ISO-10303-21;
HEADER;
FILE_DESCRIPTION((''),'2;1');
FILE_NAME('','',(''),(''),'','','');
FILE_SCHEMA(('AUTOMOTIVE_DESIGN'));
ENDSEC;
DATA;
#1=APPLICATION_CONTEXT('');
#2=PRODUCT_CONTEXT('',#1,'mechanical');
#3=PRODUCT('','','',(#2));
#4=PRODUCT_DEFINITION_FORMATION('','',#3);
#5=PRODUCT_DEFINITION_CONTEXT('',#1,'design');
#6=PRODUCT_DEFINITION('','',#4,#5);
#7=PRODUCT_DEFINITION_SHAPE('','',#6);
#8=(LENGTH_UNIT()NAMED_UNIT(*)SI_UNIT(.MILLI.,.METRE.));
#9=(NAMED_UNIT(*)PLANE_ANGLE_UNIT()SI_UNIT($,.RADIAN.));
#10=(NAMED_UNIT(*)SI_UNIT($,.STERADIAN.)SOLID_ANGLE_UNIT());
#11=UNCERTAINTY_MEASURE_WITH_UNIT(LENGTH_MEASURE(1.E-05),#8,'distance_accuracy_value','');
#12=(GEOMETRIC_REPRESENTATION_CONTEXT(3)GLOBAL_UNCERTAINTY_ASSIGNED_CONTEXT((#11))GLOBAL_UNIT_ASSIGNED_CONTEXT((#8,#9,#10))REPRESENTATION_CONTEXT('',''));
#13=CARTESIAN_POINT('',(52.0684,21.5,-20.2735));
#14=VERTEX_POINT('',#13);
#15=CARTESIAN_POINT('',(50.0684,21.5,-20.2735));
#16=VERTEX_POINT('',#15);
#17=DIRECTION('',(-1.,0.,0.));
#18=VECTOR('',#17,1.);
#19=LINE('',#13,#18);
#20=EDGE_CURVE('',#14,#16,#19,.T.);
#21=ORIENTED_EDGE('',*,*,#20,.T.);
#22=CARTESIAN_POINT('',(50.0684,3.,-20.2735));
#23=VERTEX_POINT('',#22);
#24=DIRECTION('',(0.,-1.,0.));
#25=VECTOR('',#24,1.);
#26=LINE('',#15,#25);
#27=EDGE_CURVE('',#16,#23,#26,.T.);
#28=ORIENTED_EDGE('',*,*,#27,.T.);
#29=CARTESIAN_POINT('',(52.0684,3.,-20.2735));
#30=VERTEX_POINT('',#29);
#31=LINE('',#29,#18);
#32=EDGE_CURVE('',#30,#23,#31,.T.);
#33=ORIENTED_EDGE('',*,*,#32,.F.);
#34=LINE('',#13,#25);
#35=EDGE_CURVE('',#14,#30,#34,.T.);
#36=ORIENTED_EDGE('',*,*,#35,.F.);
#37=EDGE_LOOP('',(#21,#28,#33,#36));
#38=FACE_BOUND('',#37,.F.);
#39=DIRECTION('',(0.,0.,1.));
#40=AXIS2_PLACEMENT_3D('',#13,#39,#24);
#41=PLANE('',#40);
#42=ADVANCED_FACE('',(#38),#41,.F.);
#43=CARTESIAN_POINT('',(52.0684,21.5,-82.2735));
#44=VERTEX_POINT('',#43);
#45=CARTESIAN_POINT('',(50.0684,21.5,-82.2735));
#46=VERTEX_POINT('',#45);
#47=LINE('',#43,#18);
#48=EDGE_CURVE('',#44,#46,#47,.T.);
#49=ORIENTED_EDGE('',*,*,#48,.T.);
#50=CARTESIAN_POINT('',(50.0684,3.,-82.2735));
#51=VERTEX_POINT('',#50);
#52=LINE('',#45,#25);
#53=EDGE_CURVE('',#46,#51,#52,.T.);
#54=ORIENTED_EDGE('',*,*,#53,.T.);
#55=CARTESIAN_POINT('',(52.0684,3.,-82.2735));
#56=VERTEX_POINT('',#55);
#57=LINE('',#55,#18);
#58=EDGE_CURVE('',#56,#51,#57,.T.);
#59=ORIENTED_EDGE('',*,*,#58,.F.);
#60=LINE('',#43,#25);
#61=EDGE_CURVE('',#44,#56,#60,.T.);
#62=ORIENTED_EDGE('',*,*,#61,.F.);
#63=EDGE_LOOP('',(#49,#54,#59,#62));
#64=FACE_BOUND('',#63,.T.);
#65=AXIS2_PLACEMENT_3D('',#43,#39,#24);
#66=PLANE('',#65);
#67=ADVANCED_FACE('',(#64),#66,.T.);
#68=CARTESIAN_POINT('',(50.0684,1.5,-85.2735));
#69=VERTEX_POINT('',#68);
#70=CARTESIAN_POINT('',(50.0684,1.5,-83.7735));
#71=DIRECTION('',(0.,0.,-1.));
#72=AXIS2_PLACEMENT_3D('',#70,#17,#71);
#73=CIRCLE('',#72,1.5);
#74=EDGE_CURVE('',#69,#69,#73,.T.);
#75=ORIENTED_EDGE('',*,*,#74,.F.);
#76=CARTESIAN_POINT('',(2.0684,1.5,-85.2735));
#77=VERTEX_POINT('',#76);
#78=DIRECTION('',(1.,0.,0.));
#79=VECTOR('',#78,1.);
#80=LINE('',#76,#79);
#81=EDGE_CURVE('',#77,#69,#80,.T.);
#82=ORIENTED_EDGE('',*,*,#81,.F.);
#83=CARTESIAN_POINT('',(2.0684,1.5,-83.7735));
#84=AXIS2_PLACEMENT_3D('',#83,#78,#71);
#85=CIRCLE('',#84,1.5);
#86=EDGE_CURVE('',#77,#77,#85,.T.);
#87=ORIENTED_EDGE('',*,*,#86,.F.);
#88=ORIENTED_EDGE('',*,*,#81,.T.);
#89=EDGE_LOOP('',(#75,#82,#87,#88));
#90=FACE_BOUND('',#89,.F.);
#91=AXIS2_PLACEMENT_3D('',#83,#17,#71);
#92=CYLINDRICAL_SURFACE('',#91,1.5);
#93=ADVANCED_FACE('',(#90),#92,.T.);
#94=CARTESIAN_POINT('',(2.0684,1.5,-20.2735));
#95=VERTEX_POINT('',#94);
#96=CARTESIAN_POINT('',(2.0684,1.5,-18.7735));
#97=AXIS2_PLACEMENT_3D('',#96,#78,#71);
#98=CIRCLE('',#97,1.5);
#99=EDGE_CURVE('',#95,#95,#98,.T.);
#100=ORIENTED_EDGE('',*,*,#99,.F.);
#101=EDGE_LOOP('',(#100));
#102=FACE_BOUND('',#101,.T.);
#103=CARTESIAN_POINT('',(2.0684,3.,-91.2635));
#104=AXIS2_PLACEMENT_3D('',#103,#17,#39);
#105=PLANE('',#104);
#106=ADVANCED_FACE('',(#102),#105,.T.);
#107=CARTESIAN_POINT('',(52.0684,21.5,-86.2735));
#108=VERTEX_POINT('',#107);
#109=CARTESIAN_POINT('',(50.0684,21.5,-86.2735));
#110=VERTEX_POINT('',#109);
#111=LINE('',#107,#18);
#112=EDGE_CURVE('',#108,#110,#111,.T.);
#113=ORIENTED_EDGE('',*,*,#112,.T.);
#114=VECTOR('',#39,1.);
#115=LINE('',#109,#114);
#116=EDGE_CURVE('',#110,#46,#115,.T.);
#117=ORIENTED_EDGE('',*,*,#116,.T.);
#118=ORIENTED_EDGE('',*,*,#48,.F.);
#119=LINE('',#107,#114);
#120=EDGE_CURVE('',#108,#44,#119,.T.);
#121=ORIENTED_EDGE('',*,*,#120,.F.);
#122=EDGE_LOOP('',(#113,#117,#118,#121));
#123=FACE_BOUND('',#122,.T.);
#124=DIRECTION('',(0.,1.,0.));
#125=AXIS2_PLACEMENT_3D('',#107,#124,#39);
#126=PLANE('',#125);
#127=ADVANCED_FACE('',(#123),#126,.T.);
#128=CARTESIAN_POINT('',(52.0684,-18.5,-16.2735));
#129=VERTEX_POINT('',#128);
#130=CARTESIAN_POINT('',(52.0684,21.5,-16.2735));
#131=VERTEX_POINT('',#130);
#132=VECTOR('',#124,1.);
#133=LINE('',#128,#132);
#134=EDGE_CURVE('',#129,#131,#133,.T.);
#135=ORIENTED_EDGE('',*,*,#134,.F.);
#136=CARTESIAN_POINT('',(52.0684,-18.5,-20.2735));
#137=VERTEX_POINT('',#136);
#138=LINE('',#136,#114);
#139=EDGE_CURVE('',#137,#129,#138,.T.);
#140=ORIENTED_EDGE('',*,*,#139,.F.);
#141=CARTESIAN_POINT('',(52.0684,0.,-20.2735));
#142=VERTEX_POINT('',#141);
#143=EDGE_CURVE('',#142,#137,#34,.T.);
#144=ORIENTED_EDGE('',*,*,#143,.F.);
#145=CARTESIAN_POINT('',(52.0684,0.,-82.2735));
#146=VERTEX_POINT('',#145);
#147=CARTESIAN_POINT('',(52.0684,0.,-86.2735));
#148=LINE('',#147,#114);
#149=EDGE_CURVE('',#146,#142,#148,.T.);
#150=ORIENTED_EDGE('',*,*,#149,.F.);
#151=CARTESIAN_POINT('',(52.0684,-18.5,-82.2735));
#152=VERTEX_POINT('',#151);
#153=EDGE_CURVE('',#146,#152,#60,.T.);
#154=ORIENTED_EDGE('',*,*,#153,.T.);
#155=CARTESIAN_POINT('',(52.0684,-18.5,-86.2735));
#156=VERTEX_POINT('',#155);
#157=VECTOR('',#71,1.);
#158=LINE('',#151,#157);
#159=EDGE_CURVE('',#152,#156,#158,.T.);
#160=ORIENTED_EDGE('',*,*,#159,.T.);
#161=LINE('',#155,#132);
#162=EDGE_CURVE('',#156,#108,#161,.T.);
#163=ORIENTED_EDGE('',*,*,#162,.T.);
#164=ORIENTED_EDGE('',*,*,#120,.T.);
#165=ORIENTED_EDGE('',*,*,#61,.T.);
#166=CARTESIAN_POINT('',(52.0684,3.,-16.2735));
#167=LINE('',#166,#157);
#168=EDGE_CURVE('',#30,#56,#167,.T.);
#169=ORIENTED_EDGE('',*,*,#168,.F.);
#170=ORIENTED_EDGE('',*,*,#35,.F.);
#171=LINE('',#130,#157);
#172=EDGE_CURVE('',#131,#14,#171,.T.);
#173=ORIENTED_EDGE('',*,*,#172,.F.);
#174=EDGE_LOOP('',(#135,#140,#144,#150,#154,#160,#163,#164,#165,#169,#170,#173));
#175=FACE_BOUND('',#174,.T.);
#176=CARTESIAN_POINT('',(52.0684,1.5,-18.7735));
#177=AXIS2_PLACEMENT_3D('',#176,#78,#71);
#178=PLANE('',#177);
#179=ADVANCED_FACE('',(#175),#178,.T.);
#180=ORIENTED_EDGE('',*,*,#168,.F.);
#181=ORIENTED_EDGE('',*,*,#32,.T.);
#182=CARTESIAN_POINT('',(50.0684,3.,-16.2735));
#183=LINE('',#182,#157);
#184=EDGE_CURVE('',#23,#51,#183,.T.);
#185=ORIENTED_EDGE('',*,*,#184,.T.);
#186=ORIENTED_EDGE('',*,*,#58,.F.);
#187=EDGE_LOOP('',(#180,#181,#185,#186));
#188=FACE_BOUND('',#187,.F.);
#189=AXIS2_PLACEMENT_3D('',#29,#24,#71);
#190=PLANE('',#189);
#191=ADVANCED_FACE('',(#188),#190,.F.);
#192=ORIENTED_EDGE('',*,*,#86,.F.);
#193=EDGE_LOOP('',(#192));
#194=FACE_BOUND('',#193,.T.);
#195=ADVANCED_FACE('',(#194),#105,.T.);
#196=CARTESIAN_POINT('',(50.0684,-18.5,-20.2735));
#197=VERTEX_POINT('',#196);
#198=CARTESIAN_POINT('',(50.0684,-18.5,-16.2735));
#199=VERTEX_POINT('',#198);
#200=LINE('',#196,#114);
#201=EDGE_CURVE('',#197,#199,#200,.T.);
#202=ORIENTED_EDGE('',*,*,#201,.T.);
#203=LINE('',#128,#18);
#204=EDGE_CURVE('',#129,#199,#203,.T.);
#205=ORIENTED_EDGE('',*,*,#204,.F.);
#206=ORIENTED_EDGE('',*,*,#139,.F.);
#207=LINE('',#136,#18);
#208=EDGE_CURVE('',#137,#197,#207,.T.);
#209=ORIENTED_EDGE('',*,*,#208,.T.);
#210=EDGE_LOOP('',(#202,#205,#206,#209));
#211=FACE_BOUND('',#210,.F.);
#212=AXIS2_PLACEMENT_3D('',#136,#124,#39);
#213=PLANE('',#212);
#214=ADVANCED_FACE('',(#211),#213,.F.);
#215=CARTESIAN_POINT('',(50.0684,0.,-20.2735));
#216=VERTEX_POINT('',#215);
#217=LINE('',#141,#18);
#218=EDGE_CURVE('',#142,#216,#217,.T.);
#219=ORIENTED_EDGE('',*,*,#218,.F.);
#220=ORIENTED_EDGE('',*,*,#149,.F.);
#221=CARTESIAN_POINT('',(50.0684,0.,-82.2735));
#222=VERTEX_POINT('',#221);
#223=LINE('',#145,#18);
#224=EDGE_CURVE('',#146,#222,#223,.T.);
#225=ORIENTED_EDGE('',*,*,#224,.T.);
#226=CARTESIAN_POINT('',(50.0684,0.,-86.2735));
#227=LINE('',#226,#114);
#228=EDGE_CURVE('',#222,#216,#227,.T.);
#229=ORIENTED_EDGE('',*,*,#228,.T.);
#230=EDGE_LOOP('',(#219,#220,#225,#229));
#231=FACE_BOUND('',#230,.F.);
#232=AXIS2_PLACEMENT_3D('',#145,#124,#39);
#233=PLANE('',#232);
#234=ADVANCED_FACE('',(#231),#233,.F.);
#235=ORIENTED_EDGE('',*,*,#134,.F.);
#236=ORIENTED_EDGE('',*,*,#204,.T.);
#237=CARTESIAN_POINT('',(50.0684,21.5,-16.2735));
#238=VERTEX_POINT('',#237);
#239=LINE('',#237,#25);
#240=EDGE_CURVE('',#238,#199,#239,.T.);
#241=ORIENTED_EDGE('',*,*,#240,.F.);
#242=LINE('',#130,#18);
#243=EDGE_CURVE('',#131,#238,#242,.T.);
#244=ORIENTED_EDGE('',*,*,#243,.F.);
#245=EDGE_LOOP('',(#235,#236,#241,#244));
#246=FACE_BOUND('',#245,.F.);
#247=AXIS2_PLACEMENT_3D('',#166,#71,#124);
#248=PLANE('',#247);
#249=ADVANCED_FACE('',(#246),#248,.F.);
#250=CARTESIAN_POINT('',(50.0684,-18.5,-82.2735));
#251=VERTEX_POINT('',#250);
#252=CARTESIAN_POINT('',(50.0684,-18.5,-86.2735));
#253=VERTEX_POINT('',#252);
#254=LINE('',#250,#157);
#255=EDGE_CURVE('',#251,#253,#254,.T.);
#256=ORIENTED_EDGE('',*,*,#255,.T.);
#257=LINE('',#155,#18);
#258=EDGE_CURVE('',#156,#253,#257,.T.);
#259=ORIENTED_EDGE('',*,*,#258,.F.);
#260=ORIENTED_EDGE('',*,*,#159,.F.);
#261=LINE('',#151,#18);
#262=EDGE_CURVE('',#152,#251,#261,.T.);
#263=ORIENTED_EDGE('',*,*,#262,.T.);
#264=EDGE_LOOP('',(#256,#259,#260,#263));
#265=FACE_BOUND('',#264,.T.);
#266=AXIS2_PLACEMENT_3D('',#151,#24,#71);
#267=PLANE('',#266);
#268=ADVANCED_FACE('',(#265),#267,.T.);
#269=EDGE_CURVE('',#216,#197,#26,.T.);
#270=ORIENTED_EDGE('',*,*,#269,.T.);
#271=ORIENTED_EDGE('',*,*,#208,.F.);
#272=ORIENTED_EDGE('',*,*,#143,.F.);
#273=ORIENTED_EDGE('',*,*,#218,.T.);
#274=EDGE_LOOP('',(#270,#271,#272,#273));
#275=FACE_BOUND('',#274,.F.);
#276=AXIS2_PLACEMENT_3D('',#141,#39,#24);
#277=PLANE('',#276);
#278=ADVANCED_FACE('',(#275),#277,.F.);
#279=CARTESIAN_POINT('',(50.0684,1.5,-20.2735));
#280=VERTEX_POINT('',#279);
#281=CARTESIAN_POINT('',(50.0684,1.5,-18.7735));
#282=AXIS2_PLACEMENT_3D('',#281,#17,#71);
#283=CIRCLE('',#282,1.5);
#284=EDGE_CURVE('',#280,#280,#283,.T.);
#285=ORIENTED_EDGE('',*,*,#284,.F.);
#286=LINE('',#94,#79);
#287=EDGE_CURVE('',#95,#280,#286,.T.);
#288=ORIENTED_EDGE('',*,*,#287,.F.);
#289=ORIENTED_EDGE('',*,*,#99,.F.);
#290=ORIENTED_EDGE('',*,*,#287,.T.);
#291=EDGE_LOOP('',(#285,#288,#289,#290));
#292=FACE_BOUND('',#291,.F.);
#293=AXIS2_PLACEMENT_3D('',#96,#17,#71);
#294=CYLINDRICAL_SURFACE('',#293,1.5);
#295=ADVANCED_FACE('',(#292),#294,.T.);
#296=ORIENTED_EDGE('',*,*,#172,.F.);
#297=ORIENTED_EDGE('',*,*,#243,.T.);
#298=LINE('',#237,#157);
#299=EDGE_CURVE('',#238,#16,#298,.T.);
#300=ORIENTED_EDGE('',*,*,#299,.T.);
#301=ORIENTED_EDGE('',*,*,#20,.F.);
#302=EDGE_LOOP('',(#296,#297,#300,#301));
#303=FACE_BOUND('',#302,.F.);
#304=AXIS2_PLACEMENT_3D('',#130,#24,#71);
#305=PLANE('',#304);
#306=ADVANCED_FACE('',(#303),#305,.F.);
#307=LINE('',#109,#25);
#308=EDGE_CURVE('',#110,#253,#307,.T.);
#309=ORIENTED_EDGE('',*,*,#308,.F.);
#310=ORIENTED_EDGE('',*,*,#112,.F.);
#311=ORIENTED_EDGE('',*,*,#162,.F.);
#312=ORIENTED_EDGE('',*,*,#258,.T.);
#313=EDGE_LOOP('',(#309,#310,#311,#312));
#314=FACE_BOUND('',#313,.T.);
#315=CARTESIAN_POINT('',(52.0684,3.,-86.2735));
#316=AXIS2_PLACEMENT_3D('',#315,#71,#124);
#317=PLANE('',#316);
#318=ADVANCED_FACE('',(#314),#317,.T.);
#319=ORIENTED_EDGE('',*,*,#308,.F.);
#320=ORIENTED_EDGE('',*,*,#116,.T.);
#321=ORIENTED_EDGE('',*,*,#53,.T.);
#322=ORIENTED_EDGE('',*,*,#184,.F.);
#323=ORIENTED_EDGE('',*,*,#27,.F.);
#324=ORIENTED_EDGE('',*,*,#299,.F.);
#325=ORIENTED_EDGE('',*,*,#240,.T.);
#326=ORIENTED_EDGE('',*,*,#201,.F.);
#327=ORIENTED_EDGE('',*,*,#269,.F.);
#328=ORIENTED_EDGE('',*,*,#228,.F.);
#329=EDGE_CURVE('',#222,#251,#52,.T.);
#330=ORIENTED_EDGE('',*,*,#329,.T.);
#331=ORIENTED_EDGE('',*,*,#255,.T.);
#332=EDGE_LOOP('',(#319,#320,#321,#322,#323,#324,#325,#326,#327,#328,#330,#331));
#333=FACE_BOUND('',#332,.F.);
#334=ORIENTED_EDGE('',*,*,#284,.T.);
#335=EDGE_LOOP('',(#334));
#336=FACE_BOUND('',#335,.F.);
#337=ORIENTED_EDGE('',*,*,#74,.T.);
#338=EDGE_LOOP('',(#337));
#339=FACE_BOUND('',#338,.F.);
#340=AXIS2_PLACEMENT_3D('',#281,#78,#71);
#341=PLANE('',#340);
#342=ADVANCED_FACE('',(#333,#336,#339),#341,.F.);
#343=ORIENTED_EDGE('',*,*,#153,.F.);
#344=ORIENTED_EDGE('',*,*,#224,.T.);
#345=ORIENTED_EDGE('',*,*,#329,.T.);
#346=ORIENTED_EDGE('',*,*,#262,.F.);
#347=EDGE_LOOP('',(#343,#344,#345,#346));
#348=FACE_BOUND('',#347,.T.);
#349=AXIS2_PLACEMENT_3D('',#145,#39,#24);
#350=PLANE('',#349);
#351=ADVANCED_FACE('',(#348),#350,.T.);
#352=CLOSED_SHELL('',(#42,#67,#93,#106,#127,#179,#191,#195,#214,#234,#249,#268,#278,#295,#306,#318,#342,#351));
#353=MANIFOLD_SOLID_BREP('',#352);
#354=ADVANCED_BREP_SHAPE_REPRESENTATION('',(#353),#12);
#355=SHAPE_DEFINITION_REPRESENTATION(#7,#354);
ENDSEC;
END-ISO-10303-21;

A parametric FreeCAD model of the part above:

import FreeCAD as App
import Part
import Sketcher

V = App.Vector
Q = App.Units.Quantity


def edges_at(feature, points):
    """Names of the edges that pass closest to the given points."""
    edges = feature.Shape.Edges
    near = lambda p: min(range(len(edges)), key=lambda i: edges[i].distToShape(Part.Vertex(*p))[0])
    return sorted({f"Edge{near(p) + 1}" for p in points})


def add_polygon(sketch, points):
    """Adds a closed chain of lines whose ends are joined by coincident constraints."""
    first, n = sketch.GeometryCount, len(points)
    for a, b in zip(points, points[1:] + points[:1]):
        sketch.addGeometry(Part.LineSegment(App.Vector(*a, 0), App.Vector(*b, 0)), False)
    for i in range(n):
        sketch.addConstraint(Sketcher.Constraint("Coincident", first + i, 2, first + (i + 1) % n, 1))

doc = App.newDocument("Part")
body = doc.addObject("PartDesign::Body", "Body")

# Sketch on XZ plane
sketch1 = body.newObject("Sketcher::SketchObject", "Sketch")
sketch1.AttachmentSupport = (doc.getObject("XZ_Plane"), [""])
sketch1.MapMode = "FlatFace"
add_polygon(sketch1, [(-37.9316, -86.2735), (-37.9316, -16.2735), (2.0684, -16.2735), (2.0684, -86.2735)])  # lines 0-3
sketch1.addConstraint([
    Sketcher.Constraint("Vertical", 0),
    Sketcher.Constraint("Horizontal", 1),
    Sketcher.Constraint("Vertical", 2),
    Sketcher.Constraint("Horizontal", 3),
    Sketcher.Constraint("DistanceX", 1, 1, 1, 2, Q("40 mm")),
    Sketcher.Constraint("DistanceY", 0, 1, 0, 2, Q("70 mm")),
    Sketcher.Constraint("DistanceX", 0, 2, -1, 1, Q("37.9316 mm")),
    Sketcher.Constraint("DistanceY", 0, 2, -1, 1, Q("16.2735 mm")),
])
pad1 = body.newObject("PartDesign::Pad", "Pad")
pad1.Profile = sketch1
pad1.Length = 3
pad1.Reversed = True
doc.recompute()

fillet = body.newObject("PartDesign::Fillet", "Fillet")
fillet.Base = (pad1, edges_at(pad1, [
    (-37.932, 1.5, -16.273),
    (-37.932, 1.5, -86.273),
    (2.068, 1.5, -86.273),
    (2.068, 1.5, -16.273),
]))
fillet.Radius = 1

# Sketch on YZ plane
sketch2 = body.newObject("Sketcher::SketchObject", "Sketch001")
sketch2.AttachmentSupport = (doc.getObject("YZ_Plane"), [""])
sketch2.MapMode = "FlatFace"
sketch2.AttachmentOffset = App.Placement(V(0, 0, 2.0684), App.Rotation())
sketch2.addGeometry([
    Part.Circle(V(1.5, -18.7735, 0), V(0, 0, 1), 1.5),
    Part.Circle(V(1.5, -83.7735, 0), V(0, 0, 1), 1.5),
], False)
sketch2.addConstraint([
    Sketcher.Constraint("Equal", 0, 1),
    Sketcher.Constraint("Vertical", 0, 3, 1, 3),
    Sketcher.Constraint("Diameter", 0, Q("3 mm")),
    Sketcher.Constraint("DistanceX", -1, 1, 0, 3, Q("1.5 mm")),
    Sketcher.Constraint("DistanceY", 1, 3, 0, 3, Q("65 mm")),
    Sketcher.Constraint("DistanceY", 0, 3, -1, 1, Q("18.7735 mm")),
])
pad2 = body.newObject("PartDesign::Pad", "Pad001")
pad2.Profile = sketch2
pad2.Length = 50

# Sketch on YZ plane
sketch3 = body.newObject("Sketcher::SketchObject", "Sketch002")
sketch3.AttachmentSupport = (doc.getObject("YZ_Plane"), [""])
sketch3.MapMode = "FlatFace"
sketch3.AttachmentOffset = App.Placement(V(0, 0, 52.0684), App.Rotation())
add_polygon(sketch3, [(21.5, -16.2735), (-18.5, -16.2735), (-18.5, -20.2735), (0, -20.2735), (0, -82.2735), (-18.5, -82.2735), (-18.5, -86.2735), (21.5, -86.2735), (21.5, -82.2735), (3, -82.2735), (3, -20.2735), (21.5, -20.2735)])  # lines 0-11
sketch3.addConstraint([
    Sketcher.Constraint("Horizontal", 0),
    Sketcher.Constraint("Vertical", 1),
    Sketcher.Constraint("Horizontal", 2),
    Sketcher.Constraint("Vertical", 3),
    Sketcher.Constraint("Horizontal", 4),
    Sketcher.Constraint("Vertical", 5),
    Sketcher.Constraint("Horizontal", 6),
    Sketcher.Constraint("Vertical", 7),
    Sketcher.Constraint("Horizontal", 8),
    Sketcher.Constraint("Vertical", 9),
    Sketcher.Constraint("Horizontal", 10),
    Sketcher.Constraint("Vertical", 11),
    Sketcher.Constraint("PointOnObject", 2, 2, -2),
    Sketcher.Constraint("Horizontal", 4, 2, 7, 2),
    Sketcher.Constraint("Horizontal", 2, 2, 9, 2),
    Sketcher.Constraint("Vertical", 1, 2, 4, 2),
    Sketcher.Constraint("Vertical", 7, 2, 10, 2),
    Sketcher.Constraint("Equal", 4, 8),
    Sketcher.Constraint("Equal", 1, 5),
    Sketcher.Constraint("DistanceX", 0, 2, 0, 1, Q("40 mm")),
    Sketcher.Constraint("DistanceY", 1, 2, 1, 1, Q("4 mm")),
    Sketcher.Constraint("DistanceY", 3, 2, 3, 1, Q("62 mm")),
    Sketcher.Constraint("DistanceX", 2, 1, 2, 2, Q("18.5 mm")),
    Sketcher.Constraint("DistanceY", 0, 2, -1, 1, Q("16.2735 mm")),
])
pad3 = body.newObject("PartDesign::Pad", "Pad002")
pad3.Profile = sketch3
pad3.Length = 2
pad3.Reversed = True

# Sketch on XZ plane
sketch4 = body.newObject("Sketcher::SketchObject", "Sketch003")
sketch4.AttachmentSupport = (doc.getObject("XZ_Plane"), [""])
sketch4.MapMode = "FlatFace"
sketch4.AttachmentOffset = App.Placement(V(0, 0, -3), App.Rotation())
add_polygon(sketch4, [(-41.6445, -14.6832), (2.0684, -14.6832), (2.0684, -91.2635), (-41.6445, -91.2635)])  # lines 0-3
sketch4.addConstraint([
    Sketcher.Constraint("Horizontal", 0),
    Sketcher.Constraint("Vertical", 1),
    Sketcher.Constraint("Horizontal", 2),
    Sketcher.Constraint("Vertical", 3),
    Sketcher.Constraint("DistanceX", 0, 1, 0, 2, Q("43.713 mm")),
    Sketcher.Constraint("DistanceY", 1, 2, 1, 1, Q("76.5803 mm")),
    Sketcher.Constraint("DistanceX", -1, 1, 0, 2, Q("2.0684 mm")),
    Sketcher.Constraint("DistanceY", 0, 2, -1, 1, Q("14.6832 mm")),
])
pocket1 = body.newObject("PartDesign::Pocket", "Pocket")
pocket1.Profile = sketch4
pocket1.Length = 10
pocket1.Reversed = True

doc.recompute()
